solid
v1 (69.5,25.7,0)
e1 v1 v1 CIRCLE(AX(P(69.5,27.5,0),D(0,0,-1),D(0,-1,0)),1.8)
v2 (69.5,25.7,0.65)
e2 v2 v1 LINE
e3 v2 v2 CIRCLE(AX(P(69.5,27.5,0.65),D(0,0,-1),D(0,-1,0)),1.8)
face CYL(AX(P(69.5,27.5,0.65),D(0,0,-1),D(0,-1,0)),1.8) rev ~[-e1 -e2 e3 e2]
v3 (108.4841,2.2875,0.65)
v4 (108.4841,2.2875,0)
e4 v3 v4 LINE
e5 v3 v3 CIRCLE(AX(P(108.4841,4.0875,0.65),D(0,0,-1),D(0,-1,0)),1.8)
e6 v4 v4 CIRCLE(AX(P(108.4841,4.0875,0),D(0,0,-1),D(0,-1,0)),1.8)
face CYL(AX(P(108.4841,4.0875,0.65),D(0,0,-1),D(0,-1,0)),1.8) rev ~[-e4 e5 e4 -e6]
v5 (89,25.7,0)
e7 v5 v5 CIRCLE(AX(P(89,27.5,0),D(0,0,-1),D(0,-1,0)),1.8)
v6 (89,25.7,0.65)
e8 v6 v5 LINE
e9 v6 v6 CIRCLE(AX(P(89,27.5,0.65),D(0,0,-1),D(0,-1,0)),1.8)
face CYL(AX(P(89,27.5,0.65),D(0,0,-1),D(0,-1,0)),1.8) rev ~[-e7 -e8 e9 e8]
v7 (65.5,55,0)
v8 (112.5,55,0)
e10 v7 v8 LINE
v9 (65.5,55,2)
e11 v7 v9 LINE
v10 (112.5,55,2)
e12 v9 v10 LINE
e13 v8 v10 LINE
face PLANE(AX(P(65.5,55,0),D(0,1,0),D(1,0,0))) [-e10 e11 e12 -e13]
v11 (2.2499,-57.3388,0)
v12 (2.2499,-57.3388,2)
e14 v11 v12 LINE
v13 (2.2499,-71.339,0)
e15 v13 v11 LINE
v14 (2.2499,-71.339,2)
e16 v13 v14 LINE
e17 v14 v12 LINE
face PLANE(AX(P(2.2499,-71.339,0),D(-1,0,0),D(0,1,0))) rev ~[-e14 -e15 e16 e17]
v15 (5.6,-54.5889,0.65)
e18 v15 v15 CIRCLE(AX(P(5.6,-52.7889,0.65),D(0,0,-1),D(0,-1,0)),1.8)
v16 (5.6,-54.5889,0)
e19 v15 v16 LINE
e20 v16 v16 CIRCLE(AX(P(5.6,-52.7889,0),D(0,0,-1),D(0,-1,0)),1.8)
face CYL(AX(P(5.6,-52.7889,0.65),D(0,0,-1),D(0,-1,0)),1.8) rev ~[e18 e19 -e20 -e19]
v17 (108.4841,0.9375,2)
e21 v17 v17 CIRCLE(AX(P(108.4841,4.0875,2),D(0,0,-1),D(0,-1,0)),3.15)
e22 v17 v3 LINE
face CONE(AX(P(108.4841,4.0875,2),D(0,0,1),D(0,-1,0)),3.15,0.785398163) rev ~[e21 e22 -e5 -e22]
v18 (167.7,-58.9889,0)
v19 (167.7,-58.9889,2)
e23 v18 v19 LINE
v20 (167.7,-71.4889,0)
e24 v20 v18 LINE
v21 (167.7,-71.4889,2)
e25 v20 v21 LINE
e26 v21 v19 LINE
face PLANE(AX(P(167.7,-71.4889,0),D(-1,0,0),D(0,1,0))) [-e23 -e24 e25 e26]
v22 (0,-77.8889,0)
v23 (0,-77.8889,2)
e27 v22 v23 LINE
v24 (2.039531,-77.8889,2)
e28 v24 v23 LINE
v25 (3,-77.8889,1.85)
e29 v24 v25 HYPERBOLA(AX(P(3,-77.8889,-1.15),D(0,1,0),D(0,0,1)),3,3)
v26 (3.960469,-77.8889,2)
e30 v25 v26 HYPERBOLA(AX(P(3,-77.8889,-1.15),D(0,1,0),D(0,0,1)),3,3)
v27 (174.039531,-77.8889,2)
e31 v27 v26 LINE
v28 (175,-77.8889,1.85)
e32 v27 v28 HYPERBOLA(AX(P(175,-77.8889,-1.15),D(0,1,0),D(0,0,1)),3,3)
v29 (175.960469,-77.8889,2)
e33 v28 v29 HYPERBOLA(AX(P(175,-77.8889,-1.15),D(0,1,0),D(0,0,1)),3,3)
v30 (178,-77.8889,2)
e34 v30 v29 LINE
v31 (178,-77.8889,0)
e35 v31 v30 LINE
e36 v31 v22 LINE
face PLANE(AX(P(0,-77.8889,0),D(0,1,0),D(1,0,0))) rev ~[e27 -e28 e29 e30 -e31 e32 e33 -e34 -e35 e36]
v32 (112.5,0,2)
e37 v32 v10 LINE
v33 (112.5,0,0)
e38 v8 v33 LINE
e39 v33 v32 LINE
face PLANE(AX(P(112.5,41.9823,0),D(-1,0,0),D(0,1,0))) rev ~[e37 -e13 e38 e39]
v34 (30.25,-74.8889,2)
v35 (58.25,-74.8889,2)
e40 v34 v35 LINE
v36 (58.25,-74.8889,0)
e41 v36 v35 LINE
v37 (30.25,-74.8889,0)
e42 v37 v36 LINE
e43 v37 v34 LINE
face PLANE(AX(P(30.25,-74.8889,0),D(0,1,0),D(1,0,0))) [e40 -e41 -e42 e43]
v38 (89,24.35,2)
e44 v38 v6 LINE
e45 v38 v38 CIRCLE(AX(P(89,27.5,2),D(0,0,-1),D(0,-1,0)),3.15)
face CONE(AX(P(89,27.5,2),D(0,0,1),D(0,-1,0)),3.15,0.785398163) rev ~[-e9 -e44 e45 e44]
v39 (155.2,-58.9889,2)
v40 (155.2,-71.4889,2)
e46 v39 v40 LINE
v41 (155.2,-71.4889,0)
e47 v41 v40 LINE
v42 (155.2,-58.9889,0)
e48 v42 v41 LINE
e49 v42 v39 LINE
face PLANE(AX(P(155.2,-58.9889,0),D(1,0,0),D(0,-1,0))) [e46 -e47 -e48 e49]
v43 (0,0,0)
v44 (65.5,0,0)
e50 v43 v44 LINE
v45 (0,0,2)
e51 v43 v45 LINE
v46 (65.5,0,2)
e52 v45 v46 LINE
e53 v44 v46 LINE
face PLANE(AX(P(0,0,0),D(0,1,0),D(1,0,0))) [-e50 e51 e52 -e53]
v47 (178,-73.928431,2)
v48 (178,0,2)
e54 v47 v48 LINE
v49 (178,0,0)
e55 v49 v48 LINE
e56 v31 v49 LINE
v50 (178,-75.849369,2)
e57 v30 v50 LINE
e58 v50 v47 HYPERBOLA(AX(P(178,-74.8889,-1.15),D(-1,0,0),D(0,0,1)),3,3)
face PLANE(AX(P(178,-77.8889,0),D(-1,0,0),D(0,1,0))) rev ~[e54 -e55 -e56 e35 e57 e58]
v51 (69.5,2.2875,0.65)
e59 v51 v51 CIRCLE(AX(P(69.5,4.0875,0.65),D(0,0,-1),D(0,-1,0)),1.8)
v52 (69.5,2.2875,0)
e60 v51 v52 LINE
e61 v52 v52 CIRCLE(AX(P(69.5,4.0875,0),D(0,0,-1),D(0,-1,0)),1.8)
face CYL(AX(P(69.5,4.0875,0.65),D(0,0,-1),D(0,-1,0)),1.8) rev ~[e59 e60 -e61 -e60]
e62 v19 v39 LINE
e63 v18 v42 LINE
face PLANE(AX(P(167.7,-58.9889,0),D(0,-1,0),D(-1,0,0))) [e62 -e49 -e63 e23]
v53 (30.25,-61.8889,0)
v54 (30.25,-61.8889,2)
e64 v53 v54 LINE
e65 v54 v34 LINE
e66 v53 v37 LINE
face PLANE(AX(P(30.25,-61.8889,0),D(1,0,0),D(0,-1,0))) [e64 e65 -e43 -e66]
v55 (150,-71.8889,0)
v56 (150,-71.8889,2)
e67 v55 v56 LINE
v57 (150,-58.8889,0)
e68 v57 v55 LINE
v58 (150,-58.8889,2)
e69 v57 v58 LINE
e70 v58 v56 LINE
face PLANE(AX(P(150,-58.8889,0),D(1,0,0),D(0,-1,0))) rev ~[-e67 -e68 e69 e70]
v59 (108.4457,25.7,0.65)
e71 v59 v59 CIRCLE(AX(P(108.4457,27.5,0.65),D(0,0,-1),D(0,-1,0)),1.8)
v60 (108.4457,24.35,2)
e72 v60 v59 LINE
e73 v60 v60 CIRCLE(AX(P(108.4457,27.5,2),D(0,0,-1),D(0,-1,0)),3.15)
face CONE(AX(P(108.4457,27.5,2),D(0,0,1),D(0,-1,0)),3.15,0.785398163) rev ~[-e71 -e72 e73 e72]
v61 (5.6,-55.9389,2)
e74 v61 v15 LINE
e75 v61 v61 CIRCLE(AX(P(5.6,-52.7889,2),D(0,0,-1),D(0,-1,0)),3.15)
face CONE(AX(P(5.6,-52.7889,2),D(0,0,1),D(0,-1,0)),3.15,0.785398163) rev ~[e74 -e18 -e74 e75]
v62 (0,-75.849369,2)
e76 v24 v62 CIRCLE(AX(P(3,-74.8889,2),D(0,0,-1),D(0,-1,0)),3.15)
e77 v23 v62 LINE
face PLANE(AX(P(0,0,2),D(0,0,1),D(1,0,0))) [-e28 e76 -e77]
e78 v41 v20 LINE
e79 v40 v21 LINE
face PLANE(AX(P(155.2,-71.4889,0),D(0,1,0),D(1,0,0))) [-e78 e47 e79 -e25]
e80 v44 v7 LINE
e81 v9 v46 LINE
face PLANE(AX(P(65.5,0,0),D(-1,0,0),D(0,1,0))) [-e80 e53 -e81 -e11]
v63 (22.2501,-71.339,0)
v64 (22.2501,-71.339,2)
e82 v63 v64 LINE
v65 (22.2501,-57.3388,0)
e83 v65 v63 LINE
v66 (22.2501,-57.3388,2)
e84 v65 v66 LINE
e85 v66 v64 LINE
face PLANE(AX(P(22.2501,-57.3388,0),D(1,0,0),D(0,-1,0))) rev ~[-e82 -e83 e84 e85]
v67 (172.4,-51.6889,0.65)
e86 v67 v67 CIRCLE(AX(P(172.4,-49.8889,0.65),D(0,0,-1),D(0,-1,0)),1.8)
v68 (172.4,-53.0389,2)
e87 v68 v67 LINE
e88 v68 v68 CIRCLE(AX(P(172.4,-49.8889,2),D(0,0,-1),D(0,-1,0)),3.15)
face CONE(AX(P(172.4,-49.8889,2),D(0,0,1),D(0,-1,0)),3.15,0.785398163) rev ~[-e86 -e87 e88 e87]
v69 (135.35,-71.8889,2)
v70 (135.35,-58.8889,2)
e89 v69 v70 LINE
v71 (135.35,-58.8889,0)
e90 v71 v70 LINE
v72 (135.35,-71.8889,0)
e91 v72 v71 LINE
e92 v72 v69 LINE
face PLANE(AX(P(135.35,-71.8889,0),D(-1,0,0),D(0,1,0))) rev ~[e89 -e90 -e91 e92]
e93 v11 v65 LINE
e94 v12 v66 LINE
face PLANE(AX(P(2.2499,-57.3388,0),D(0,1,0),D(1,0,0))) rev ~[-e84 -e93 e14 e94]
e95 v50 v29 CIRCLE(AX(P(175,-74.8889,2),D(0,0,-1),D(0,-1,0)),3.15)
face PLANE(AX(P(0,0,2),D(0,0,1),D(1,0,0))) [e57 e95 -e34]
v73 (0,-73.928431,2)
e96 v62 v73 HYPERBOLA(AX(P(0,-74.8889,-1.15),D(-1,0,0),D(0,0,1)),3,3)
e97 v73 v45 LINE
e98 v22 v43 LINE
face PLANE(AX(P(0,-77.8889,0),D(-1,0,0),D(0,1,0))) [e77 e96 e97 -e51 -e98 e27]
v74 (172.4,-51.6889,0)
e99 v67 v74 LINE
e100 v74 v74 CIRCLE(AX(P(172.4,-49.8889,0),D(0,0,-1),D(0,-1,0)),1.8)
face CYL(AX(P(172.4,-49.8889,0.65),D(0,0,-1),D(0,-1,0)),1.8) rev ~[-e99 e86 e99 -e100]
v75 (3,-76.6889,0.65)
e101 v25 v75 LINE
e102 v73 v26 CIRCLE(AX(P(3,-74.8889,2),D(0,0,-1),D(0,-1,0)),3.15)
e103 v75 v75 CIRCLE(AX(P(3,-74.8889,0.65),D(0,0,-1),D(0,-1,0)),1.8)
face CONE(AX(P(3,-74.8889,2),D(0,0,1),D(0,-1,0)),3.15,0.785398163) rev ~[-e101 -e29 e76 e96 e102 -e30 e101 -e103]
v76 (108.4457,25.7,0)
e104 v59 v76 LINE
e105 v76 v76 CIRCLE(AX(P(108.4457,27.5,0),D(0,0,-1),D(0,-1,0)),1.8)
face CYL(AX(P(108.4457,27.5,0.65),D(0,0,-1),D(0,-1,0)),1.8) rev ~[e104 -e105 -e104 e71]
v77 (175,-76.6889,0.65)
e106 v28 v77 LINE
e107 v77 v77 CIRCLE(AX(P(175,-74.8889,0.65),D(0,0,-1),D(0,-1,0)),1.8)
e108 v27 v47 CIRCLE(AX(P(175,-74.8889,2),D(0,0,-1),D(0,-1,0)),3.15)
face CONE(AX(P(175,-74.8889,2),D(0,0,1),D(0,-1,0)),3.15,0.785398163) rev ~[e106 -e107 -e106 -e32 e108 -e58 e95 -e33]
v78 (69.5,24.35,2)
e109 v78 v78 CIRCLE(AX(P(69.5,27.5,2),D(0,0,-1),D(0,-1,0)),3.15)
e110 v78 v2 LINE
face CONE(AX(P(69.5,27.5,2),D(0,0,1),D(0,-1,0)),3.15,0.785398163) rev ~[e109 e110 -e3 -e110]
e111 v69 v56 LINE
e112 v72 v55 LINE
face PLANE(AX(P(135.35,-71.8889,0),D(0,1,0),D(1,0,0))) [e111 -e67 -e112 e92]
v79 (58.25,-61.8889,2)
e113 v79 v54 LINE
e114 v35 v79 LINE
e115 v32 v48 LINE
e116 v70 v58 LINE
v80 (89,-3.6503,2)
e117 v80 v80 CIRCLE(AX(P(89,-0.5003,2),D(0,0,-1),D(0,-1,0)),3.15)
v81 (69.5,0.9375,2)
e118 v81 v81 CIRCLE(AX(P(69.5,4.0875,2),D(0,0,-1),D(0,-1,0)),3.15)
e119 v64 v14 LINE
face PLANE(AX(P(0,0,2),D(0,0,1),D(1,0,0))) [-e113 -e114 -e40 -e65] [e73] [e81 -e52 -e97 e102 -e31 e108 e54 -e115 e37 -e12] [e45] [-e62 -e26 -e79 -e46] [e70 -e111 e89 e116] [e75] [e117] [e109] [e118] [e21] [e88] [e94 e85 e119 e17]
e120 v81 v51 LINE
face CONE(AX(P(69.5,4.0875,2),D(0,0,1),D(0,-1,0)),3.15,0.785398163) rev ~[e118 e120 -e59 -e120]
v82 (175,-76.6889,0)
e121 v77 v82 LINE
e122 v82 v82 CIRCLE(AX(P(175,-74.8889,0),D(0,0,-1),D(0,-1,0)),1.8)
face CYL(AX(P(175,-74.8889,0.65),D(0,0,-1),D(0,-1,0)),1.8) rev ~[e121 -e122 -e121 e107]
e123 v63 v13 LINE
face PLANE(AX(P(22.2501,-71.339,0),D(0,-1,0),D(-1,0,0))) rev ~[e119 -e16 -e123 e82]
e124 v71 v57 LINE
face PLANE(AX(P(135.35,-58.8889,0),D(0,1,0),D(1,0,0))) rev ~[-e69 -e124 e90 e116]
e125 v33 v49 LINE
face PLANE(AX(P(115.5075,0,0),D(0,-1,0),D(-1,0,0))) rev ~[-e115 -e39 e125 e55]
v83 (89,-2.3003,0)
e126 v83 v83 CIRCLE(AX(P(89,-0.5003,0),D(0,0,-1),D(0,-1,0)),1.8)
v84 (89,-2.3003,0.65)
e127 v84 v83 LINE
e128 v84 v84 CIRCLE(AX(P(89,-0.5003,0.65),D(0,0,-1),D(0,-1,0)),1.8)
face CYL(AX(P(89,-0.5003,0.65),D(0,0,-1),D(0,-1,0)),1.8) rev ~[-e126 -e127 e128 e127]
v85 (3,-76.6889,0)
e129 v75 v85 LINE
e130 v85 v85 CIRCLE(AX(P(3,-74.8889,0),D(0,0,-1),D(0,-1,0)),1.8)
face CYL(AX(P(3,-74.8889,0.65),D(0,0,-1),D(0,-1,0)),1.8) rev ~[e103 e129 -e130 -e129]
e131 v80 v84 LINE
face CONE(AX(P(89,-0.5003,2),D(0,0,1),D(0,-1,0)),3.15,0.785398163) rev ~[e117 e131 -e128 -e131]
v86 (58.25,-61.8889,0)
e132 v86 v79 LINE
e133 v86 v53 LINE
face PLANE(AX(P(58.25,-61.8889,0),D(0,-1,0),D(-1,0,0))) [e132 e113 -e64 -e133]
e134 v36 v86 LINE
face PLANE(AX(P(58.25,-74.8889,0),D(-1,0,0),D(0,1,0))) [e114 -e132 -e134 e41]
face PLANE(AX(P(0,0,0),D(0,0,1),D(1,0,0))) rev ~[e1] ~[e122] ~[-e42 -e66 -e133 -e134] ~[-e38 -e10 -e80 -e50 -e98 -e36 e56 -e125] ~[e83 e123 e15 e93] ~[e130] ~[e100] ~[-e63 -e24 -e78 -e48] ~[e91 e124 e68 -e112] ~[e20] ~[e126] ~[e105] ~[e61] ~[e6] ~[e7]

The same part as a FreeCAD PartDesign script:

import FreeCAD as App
import Part
import Sketcher

V = App.Vector
Q = App.Units.Quantity


def add_polygon(sketch, points):
    """Adds a closed chain of lines whose ends are joined by coincident constraints."""
    first, n = sketch.GeometryCount, len(points)
    for a, b in zip(points, points[1:] + points[:1]):
        sketch.addGeometry(Part.LineSegment(App.Vector(*a, 0), App.Vector(*b, 0)), False)
    for i in range(n):
        sketch.addConstraint(Sketcher.Constraint("Coincident", first + i, 2, first + (i + 1) % n, 1))

doc = App.newDocument("Part")
body = doc.addObject("PartDesign::Body", "Body")

sketch1 = body.newObject("Sketcher::SketchObject", "Sketch")
sketch1.AttachmentSupport = (doc.getObject("XY_Plane"), [""])
sketch1.MapMode = "FlatFace"
add_polygon(sketch1, [(0, -78), (178, -78), (178, 0), (112, 0), (112, 55), (66, 55), (66, 0), (0, 0)])
add_polygon(sketch1, [(150, -72), (135, -72), (135, -59), (150, -59)])
add_polygon(sketch1, [(22, -71), (2, -71), (2, -57), (22, -57)])
add_polygon(sketch1, [(30, -75), (30, -62), (58, -62), (58, -75)])
add_polygon(sketch1, [(168, -59), (168, -71), (155, -71), (155, -59)])
sketch1.addConstraint(Sketcher.Constraint("Horizontal", 0))
sketch1.addConstraint(Sketcher.Constraint("Vertical", 1))
sketch1.addConstraint(Sketcher.Constraint("Horizontal", 2))
sketch1.addConstraint(Sketcher.Constraint("Vertical", 3))
sketch1.addConstraint(Sketcher.Constraint("Horizontal", 4))
sketch1.addConstraint(Sketcher.Constraint("Vertical", 5))
sketch1.addConstraint(Sketcher.Constraint("Horizontal", 6))
sketch1.addConstraint(Sketcher.Constraint("Vertical", 7))
sketch1.addConstraint(Sketcher.Constraint("Horizontal", 8))
sketch1.addConstraint(Sketcher.Constraint("Vertical", 9))
sketch1.addConstraint(Sketcher.Constraint("Horizontal", 10))
sketch1.addConstraint(Sketcher.Constraint("Vertical", 11))
sketch1.addConstraint(Sketcher.Constraint("Horizontal", 12))
sketch1.addConstraint(Sketcher.Constraint("Vertical", 13))
sketch1.addConstraint(Sketcher.Constraint("Horizontal", 14))
sketch1.addConstraint(Sketcher.Constraint("Vertical", 15))
sketch1.addConstraint(Sketcher.Constraint("Vertical", 16))
sketch1.addConstraint(Sketcher.Constraint("Horizontal", 17))
sketch1.addConstraint(Sketcher.Constraint("Vertical", 18))
sketch1.addConstraint(Sketcher.Constraint("Horizontal", 19))
sketch1.addConstraint(Sketcher.Constraint("Vertical", 20))
sketch1.addConstraint(Sketcher.Constraint("Horizontal", 21))
sketch1.addConstraint(Sketcher.Constraint("Vertical", 22))
sketch1.addConstraint(Sketcher.Constraint("Horizontal", 23))
sketch1.addConstraint(Sketcher.Constraint("Coincident", 6, 2, -1, 1))
sketch1.addConstraint(Sketcher.Constraint("PointOnObject", 1, 2, -1))
sketch1.addConstraint(Sketcher.Constraint("Equal", 2, 6))
sketch1.addConstraint(Sketcher.Constraint("Equal", 11, 16))
sketch1.addConstraint(Sketcher.Constraint("Equal", 23, 20))
sketch1.addConstraint(Sketcher.Constraint("DistanceX", 0, 1, 0, 2, Q("178 mm")))
sketch1.addConstraint(Sketcher.Constraint("DistanceX", 4, 2, 4, 1, Q("47 mm")))
sketch1.addConstraint(Sketcher.Constraint("DistanceX", 17, 1, 17, 2, Q("28 mm")))
sketch1.addConstraint(Sketcher.Constraint("DistanceY", 3, 1, 3, 2, Q("55 mm")))
sketch1.addConstraint(Sketcher.Constraint("DistanceY", 9, 1, 9, 2, Q("13 mm")))
sketch1.addConstraint(Sketcher.Constraint("DistanceX", 21, 2, 21, 1, Q("12.5 mm")))
sketch1.addConstraint(Sketcher.Constraint("DistanceX", -1, 1, 10, 2, Q("150 mm")))
sketch1.addConstraint(Sketcher.Constraint("DistanceY", 0, 2, 8, 2, Q("6 mm")))
sketch1.addConstraint(Sketcher.Constraint("DistanceX", 14, 2, 16, 2, Q("8 mm")))
sketch1.addConstraint(Sketcher.Constraint("DistanceX", 13, 2, 16, 2, Q("28 mm")))
sketch1.addConstraint(Sketcher.Constraint("DistanceY", 7, 2, 16, 2, Q("16 mm")))
sketch1.addConstraint(Sketcher.Constraint("DistanceX", 8, 2, 8, 1, Q("14.65 mm")))
sketch1.addConstraint(Sketcher.Constraint("DistanceX", -1, 1, 20, 2, Q("167.7 mm")))
sketch1.addConstraint(Sketcher.Constraint("DistanceX", 12, 2, 8, 2, Q("133.1 mm")))
sketch1.addConstraint(Sketcher.Constraint("DistanceY", 0, 2, 20, 2, Q("6.4 mm")))
sketch1.addConstraint(Sketcher.Constraint("DistanceY", 1, 1, 1, 2, Q("77.889 mm")))
sketch1.addConstraint(Sketcher.Constraint("DistanceY", 7, 2, 12, 2, Q("6.55 mm")))
sketch1.addConstraint(Sketcher.Constraint("DistanceY", 7, 2, 13, 2, Q("20.55 mm")))
pad1 = body.newObject("PartDesign::Pad", "Pad")
pad1.Profile = sketch1
pad1.Length = 2

sketch2 = body.newObject("Sketcher::SketchObject", "Sketch001")
sketch2.AttachmentSupport = (doc.getObject("XY_Plane"), [""])
sketch2.MapMode = "FlatFace"
sketch2.AttachmentOffset = App.Placement(V(0, 0, 2), App.Rotation())
sketch2.addGeometry(Part.Circle(V(3, -74.9, 0), V(0, 0, 1), 1.8), False)
sketch2.addGeometry(Part.Circle(V(5.6, -52.8, 0), V(0, 0, 1), 1.8), False)
sketch2.addGeometry(Part.Circle(V(175, -74.9, 0), V(0, 0, 1), 1.8), False)
sketch2.addGeometry(Part.Circle(V(172.4, -49.9, 0), V(0, 0, 1), 1.8), False)
sketch2.addGeometry(Part.Circle(V(89, -0.5, 0), V(0, 0, 1), 1.8), False)
sketch2.addGeometry(Part.Circle(V(69.5, 4.1, 0), V(0, 0, 1), 1.8), False)
sketch2.addGeometry(Part.Circle(V(108.5, 4.1, 0), V(0, 0, 1), 1.8), False)
sketch2.addGeometry(Part.Circle(V(89, 27.5, 0), V(0, 0, 1), 1.8), False)
sketch2.addGeometry(Part.Circle(V(69.5, 27.5, 0), V(0, 0, 1), 1.8), False)
sketch2.addGeometry(Part.Circle(V(108.4, 27.5, 0), V(0, 0, 1), 1.8), False)
sketch2.addConstraint(Sketcher.Constraint("Equal", 0, 1))
sketch2.addConstraint(Sketcher.Constraint("Equal", 1, 2))
sketch2.addConstraint(Sketcher.Constraint("Equal", 2, 3))
sketch2.addConstraint(Sketcher.Constraint("Equal", 3, 4))
sketch2.addConstraint(Sketcher.Constraint("Equal", 4, 5))
sketch2.addConstraint(Sketcher.Constraint("Equal", 5, 6))
sketch2.addConstraint(Sketcher.Constraint("Equal", 6, 7))
sketch2.addConstraint(Sketcher.Constraint("Equal", 7, 8))
sketch2.addConstraint(Sketcher.Constraint("Equal", 8, 9))
sketch2.addConstraint(Sketcher.Constraint("Horizontal", 0, 3, 2, 3))
sketch2.addConstraint(Sketcher.Constraint("Horizontal", 5, 3, 6, 3))
sketch2.addConstraint(Sketcher.Constraint("Horizontal", 7, 3, 8, 3))
sketch2.addConstraint(Sketcher.Constraint("Horizontal", 8, 3, 9, 3))
sketch2.addConstraint(Sketcher.Constraint("Vertical", 4, 3, 7, 3))
sketch2.addConstraint(Sketcher.Constraint("Vertical", 5, 3, 8, 3))
sketch2.addConstraint(Sketcher.Constraint("Diameter", 0, Q("3.6 mm")))
sketch2.addConstraint(Sketcher.Constraint("DistanceX", -1, 1, 0, 3, Q("3 mm")))
sketch2.addConstraint(Sketcher.Constraint("DistanceX", -1, 1, 2, 3, Q("175 mm")))
sketch2.addConstraint(Sketcher.Constraint("DistanceX", -1, 1, 4, 3, Q("89 mm")))
sketch2.addConstraint(Sketcher.Constraint("DistanceY", 2, 3, 3, 3, Q("25 mm")))
sketch2.addConstraint(Sketcher.Constraint("DistanceX", -1, 1, 1, 3, Q("5.6 mm")))
sketch2.addConstraint(Sketcher.Constraint("DistanceX", -1, 1, 3, 3, Q("172.4 mm")))
sketch2.addConstraint(Sketcher.Constraint("DistanceX", -1, 1, 5, 3, Q("69.5 mm")))
sketch2.addConstraint(Sketcher.Constraint("DistanceY", -1, 1, 7, 3, Q("27.5 mm")))
sketch2.addConstraint(Sketcher.Constraint("DistanceY", 0, 3, 1, 3, Q("22.1 mm")))
sketch2.addConstraint(Sketcher.Constraint("DistanceY", 0, 3, -1, 1, Q("74.889 mm")))
sketch2.addConstraint(Sketcher.Constraint("DistanceX", -1, 1, 6, 3, Q("108.484 mm")))
sketch2.addConstraint(Sketcher.Constraint("DistanceY", 4, 3, -1, 1, Q("0.5003 mm")))
sketch2.addConstraint(Sketcher.Constraint("DistanceY", -1, 1, 5, 3, Q("4.0875 mm")))
sketch2.addConstraint(Sketcher.Constraint("DistanceX", -1, 1, 9, 3, Q("108.4457 mm")))
doc.recompute()
hole = body.newObject("PartDesign::Hole", "Hole")
hole.Profile = sketch2
hole.ThreadType = "None"
hole.Diameter = 3.6
hole.DepthType = "ThroughAll"
hole.HoleCutType = "Countersink"
hole.HoleCutDiameter = 6.3
hole.HoleCutCountersinkAngle = 90

doc.recompute()
